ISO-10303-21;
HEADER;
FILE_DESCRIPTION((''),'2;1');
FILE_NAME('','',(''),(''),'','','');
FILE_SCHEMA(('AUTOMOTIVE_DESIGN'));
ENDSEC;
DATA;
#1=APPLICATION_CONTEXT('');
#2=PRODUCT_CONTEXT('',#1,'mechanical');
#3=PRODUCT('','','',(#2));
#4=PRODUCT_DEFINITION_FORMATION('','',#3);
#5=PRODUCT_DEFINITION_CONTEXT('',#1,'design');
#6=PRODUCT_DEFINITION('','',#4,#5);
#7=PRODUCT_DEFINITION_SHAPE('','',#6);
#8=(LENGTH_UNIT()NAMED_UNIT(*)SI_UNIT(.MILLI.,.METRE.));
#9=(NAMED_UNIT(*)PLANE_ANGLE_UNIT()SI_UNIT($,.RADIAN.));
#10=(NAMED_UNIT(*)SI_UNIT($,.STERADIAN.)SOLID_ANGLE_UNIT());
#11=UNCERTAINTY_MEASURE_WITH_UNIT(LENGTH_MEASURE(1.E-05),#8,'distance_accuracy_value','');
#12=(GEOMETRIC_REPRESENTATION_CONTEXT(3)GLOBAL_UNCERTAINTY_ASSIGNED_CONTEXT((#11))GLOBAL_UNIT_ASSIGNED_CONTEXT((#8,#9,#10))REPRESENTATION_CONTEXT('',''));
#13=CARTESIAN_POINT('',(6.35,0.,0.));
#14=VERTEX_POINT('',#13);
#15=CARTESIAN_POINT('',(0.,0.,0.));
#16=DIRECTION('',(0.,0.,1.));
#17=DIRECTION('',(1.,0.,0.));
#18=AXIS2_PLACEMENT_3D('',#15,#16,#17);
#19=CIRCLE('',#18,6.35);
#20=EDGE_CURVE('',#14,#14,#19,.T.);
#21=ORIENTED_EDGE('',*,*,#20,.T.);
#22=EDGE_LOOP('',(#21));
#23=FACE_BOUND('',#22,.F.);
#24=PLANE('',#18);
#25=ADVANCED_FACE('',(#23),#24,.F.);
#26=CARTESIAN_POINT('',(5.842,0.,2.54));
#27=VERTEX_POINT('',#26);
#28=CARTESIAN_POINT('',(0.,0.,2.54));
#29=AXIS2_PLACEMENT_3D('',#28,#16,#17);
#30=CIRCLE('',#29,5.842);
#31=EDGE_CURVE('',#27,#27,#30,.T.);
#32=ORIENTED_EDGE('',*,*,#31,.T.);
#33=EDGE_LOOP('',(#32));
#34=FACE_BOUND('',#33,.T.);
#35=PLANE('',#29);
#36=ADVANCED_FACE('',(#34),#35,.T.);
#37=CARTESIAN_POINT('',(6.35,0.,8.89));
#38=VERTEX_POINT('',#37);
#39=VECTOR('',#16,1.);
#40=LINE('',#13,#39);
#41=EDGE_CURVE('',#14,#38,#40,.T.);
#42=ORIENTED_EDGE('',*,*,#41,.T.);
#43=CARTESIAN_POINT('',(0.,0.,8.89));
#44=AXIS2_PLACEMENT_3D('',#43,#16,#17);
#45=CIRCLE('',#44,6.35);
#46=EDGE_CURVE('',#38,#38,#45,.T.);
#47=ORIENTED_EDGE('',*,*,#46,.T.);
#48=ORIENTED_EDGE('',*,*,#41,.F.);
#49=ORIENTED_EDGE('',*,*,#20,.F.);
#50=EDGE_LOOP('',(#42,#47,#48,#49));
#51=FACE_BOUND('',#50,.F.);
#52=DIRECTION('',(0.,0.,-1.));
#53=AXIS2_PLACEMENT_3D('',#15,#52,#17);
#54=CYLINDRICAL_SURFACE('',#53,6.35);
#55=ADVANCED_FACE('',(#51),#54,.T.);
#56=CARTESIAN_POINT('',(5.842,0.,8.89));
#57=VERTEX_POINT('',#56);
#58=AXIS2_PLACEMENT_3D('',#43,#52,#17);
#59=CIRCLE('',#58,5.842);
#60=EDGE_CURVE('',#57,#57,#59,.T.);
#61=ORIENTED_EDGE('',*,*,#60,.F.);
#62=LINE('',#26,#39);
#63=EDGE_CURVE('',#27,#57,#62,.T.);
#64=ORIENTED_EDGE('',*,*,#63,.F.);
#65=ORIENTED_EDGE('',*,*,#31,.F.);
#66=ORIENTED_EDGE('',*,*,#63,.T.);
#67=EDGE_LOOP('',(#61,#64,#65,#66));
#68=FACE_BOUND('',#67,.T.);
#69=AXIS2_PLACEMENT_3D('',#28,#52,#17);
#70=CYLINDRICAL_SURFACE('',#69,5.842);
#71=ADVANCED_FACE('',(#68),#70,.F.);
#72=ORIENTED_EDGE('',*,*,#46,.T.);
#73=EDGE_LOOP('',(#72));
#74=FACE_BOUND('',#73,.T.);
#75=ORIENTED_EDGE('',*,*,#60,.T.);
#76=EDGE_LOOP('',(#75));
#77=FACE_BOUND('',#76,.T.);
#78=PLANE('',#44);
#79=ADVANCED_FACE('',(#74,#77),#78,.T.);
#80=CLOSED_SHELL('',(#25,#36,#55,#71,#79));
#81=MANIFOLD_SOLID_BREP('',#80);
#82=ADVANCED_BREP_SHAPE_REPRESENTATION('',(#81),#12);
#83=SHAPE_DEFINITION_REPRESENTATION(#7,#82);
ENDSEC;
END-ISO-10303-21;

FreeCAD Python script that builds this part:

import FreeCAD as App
import Part
import Sketcher
from FreeCAD import Vector
Q = App.Units.Quantity

doc = App.newDocument("Part")
params = doc.addObject("Spreadsheet::Sheet", "Params")
for row, (alias, value) in enumerate([
    ("sketch1_diameter", "0.5 in"),
    ("pad1_length", "0.35 in"),
    ("sketch2_diameter", "0.46 in"),
    ("pocket1_length", "0.9 in"),
], start=1):
    params.set(f"A{row}", alias)
    params.set(f"B{row}", "=" + value)
    params.setAlias(f"B{row}", alias)

body = doc.addObject("PartDesign::Body", "Body")

# Sketch on XY plane
sketch1 = body.newObject("Sketcher::SketchObject", "Sketch")
sketch1.AttachmentSupport = (doc.getObject("XY_Plane"), [""])
sketch1.MapMode = "FlatFace"
sketch1.addGeometry(Part.Circle(Vector(0, 0, 0), Vector(0, 0, 1), 6), False)
sketch1.addConstraint([
    Sketcher.Constraint("Coincident", 0, 3, -1, 1),
    Sketcher.Constraint("Diameter", 0, Q("0.5 in")),
])
sketch1.setExpression("Constraints[1]", "Params.sketch1_diameter")
pad1 = body.newObject("PartDesign::Pad", "Pad")
pad1.Profile = sketch1
pad1.setExpression("Length", "Params.pad1_length")

# Sketch on XY plane
sketch2 = body.newObject("Sketcher::SketchObject", "Sketch001")
sketch2.AttachmentSupport = (doc.getObject("XY_Plane"), [""])
sketch2.MapMode = "FlatFace"
sketch2.AttachmentOffset = App.Placement(Vector(0, 0, 0.1 * 25.4), App.Rotation())
sketch2.addGeometry(Part.Circle(Vector(0, 0, 0), Vector(0, 0, 1), 6), False)
sketch2.addConstraint([
    Sketcher.Constraint("Coincident", 0, 3, -1, 1),
    Sketcher.Constraint("Diameter", 0, Q("0.46 in")),
])
sketch2.setExpression("Constraints[1]", "Params.sketch2_diameter")
pocket1 = body.newObject("PartDesign::Pocket", "Pocket")
pocket1.Profile = sketch2
pocket1.setExpression("Length", "Params.pocket1_length")
pocket1.Reversed = True

doc.recompute()
